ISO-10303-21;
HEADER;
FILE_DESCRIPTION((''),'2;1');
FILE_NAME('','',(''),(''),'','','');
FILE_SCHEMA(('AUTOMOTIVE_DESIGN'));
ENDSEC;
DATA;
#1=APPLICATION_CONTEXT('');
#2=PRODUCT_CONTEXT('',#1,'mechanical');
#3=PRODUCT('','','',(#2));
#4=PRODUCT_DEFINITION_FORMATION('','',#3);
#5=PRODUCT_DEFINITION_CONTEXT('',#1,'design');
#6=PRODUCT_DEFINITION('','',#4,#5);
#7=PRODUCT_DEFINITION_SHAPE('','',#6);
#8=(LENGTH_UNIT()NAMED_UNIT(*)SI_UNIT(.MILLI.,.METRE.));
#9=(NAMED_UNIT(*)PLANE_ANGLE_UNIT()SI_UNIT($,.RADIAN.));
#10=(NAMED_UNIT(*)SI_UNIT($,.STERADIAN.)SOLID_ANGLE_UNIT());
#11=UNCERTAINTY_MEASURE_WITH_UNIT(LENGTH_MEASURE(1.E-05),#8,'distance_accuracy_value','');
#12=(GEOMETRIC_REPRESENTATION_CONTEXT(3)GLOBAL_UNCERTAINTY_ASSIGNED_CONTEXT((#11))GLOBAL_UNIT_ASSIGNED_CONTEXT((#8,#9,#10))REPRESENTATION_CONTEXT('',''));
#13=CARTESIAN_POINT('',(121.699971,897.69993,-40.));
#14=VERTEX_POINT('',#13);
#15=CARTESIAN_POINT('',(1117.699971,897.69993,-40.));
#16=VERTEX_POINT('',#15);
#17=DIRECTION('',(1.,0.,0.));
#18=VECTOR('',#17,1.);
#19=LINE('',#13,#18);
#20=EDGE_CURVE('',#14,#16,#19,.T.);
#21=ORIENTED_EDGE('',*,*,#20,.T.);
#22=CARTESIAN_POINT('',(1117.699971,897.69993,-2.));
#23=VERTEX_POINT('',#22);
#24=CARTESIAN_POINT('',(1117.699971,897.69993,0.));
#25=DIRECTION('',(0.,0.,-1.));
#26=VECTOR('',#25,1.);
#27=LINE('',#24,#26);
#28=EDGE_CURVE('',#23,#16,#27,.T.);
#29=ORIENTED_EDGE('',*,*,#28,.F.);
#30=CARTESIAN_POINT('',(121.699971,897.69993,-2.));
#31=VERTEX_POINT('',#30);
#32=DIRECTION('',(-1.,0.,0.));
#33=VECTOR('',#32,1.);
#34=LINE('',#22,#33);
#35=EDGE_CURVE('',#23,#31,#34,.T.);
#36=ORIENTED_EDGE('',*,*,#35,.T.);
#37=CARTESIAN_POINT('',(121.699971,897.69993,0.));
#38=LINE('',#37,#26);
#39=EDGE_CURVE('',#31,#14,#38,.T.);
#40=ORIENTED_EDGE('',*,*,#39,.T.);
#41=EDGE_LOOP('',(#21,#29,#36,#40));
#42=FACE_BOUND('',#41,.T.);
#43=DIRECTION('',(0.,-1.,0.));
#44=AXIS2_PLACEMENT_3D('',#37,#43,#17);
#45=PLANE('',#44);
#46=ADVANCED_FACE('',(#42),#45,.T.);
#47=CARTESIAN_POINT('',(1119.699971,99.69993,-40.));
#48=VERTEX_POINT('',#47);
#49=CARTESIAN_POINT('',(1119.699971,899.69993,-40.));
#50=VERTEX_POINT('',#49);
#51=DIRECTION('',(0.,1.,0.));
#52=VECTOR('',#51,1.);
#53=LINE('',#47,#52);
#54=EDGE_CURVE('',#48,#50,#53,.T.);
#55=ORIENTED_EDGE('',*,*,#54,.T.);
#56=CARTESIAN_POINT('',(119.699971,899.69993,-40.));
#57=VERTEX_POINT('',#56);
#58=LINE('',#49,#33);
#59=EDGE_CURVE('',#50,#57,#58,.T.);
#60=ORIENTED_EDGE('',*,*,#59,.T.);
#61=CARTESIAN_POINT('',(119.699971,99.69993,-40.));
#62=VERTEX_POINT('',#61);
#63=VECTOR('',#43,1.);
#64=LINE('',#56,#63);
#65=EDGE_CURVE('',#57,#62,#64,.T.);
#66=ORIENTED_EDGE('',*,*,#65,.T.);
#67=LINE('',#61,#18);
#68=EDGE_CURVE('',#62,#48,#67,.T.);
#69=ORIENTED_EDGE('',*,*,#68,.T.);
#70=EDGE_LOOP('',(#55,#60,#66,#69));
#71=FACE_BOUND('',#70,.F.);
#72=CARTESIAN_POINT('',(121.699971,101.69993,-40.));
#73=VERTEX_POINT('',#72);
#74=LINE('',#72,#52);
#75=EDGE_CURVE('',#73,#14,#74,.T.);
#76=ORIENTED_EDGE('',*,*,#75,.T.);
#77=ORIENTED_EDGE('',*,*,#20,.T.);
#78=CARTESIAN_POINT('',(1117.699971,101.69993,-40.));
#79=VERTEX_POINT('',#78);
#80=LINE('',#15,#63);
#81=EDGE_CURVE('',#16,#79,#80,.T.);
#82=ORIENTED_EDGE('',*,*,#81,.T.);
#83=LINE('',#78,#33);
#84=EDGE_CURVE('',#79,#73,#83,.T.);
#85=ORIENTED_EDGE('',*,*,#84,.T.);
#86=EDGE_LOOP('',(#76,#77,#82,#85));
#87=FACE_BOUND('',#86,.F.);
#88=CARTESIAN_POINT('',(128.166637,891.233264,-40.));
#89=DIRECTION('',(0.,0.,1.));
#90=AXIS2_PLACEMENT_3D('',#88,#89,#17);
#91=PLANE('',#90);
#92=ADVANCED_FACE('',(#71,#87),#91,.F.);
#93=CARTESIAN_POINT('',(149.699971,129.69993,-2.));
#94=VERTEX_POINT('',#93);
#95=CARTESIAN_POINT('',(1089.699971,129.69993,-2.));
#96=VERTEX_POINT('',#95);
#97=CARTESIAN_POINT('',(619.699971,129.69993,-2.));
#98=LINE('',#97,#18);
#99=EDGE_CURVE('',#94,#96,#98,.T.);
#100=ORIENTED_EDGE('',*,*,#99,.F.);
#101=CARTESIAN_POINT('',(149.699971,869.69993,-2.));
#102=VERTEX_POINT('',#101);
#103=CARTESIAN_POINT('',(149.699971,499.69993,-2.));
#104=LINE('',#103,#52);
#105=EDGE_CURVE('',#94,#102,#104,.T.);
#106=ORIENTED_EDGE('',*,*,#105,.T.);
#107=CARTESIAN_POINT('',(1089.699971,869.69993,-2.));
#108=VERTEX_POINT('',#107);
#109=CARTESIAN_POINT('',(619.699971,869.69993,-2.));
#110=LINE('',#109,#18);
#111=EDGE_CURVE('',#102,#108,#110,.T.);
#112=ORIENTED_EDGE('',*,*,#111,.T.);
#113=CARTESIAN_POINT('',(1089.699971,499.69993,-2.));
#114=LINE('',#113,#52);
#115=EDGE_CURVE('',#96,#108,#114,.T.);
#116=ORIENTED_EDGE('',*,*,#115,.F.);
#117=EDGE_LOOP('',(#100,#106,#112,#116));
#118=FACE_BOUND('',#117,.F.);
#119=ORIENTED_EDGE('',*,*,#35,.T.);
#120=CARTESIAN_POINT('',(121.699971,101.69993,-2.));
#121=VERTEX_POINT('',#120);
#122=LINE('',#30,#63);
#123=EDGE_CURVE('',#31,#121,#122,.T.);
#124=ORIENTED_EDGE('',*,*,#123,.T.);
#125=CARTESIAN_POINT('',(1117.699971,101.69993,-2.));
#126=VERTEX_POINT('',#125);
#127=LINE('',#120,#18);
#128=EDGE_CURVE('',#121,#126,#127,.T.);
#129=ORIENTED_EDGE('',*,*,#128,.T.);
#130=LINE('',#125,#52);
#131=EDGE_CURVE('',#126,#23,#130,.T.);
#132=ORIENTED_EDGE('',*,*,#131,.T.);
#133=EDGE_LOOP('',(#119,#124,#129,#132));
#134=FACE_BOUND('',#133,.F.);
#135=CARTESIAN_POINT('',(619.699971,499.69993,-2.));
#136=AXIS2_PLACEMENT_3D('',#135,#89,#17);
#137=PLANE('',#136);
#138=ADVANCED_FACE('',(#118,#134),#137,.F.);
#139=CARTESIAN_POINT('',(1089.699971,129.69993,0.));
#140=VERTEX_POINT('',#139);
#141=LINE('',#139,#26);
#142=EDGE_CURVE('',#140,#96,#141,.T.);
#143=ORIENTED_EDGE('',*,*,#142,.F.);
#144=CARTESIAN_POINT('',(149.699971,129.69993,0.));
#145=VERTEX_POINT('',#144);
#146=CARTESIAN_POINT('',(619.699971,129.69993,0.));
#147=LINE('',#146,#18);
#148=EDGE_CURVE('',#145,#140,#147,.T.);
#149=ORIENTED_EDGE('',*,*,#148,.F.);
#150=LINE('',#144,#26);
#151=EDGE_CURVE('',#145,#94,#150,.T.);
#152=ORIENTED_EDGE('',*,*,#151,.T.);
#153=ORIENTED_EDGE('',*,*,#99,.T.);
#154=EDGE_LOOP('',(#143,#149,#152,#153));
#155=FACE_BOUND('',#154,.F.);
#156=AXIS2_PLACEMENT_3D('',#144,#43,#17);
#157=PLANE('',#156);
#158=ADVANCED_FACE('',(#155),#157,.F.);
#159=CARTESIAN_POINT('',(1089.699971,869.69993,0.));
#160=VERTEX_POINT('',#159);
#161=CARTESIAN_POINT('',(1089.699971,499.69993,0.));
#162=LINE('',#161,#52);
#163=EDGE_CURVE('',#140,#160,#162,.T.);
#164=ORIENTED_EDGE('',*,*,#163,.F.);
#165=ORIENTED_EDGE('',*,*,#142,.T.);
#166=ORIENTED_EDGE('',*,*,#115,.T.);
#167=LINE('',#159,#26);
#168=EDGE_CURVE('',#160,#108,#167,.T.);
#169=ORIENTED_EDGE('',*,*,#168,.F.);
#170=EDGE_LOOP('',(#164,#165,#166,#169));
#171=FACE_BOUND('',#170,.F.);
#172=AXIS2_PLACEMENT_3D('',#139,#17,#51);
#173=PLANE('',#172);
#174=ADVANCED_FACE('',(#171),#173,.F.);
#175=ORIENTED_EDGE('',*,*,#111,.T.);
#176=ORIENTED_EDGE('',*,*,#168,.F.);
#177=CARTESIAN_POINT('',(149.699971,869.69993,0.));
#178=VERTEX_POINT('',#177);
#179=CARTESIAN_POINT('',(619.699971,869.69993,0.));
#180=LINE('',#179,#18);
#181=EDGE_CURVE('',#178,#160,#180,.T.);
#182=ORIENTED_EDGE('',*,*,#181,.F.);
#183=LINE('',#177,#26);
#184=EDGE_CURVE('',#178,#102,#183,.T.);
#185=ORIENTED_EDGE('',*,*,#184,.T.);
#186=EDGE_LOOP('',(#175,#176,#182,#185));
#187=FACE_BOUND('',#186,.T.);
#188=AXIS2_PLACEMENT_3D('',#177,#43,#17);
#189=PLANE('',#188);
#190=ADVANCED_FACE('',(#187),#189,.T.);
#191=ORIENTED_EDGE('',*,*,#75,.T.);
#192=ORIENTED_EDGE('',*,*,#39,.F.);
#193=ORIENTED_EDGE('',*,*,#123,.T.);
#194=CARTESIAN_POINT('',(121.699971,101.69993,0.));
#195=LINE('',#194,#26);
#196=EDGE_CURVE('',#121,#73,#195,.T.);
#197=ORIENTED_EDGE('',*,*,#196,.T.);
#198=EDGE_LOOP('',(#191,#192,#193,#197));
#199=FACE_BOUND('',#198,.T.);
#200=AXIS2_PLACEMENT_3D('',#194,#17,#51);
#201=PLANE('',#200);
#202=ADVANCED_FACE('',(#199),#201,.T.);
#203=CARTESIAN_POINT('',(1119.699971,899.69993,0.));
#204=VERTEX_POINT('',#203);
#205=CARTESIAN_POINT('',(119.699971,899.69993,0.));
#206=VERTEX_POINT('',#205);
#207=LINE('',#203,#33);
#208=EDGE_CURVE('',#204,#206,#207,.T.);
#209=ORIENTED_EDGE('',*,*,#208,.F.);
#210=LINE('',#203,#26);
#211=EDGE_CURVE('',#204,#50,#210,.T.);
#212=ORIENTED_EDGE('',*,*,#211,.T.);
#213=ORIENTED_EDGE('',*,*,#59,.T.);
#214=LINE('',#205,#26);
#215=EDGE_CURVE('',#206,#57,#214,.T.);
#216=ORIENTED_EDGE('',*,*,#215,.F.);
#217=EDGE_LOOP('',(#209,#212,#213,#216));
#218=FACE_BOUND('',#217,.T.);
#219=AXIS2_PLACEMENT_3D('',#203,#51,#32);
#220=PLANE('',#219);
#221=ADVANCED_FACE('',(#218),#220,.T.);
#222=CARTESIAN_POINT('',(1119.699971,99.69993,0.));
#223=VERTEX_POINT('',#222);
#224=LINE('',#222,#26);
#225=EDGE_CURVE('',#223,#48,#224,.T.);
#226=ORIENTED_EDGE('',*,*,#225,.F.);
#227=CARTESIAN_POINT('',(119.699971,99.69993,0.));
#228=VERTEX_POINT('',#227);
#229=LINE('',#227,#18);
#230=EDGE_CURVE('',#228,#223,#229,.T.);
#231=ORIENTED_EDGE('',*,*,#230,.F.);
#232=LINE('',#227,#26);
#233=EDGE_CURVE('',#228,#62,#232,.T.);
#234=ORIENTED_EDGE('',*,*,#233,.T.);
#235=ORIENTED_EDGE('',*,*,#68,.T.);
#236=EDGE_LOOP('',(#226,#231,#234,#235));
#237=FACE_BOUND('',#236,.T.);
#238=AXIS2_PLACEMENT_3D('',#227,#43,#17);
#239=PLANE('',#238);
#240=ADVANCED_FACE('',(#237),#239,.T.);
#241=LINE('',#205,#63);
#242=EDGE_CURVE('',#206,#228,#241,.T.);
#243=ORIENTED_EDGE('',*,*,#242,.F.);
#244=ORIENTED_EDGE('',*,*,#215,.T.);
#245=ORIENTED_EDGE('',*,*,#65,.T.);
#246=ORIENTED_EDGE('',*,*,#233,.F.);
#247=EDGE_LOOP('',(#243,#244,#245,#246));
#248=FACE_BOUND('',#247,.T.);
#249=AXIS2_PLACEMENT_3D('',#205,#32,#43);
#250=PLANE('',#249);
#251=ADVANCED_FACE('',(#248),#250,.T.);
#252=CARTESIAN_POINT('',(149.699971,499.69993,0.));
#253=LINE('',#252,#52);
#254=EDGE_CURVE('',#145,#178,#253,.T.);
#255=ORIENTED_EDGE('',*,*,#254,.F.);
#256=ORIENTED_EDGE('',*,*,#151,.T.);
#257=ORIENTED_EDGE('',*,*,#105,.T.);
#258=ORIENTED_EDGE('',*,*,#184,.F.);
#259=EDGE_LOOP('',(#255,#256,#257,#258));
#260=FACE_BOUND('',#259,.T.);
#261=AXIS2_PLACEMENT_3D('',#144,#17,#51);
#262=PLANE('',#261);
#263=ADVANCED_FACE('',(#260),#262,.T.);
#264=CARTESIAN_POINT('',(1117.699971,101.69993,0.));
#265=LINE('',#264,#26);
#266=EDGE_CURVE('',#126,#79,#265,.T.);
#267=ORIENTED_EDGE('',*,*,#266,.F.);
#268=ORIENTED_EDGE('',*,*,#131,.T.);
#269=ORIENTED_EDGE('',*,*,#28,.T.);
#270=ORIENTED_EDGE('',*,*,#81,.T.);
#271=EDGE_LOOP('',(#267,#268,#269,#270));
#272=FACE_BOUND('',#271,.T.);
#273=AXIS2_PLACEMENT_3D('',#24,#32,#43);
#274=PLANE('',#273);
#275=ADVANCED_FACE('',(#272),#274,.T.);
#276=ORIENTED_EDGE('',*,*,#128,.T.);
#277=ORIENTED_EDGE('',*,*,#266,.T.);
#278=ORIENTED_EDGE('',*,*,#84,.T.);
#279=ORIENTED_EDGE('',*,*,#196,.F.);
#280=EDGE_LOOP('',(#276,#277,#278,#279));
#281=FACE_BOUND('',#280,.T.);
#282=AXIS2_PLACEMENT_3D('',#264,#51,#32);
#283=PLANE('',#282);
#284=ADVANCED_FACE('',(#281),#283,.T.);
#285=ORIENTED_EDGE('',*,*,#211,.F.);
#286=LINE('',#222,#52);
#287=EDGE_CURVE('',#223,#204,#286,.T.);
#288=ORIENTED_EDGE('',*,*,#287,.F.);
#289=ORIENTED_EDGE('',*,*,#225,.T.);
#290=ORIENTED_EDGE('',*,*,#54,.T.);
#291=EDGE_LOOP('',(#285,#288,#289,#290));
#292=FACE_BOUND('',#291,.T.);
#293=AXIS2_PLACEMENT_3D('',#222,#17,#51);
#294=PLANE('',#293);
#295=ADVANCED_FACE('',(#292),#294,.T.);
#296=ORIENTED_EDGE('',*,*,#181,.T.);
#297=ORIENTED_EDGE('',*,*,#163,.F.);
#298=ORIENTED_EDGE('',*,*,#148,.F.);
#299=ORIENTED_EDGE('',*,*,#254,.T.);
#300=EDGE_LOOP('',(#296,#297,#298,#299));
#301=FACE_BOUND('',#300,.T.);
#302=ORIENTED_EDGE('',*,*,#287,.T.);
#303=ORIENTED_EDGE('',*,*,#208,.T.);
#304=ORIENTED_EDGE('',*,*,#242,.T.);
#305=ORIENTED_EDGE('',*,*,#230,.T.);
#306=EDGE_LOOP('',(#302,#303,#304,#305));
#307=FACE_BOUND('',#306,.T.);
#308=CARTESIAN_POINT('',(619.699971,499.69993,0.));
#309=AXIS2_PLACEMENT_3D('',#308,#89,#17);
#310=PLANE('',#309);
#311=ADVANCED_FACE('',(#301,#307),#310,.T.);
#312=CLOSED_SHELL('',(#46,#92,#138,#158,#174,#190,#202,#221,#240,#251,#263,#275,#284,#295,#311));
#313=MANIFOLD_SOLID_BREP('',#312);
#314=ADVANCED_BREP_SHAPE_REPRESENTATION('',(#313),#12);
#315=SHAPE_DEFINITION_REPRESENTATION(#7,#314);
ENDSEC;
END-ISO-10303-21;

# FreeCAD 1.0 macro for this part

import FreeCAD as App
import Part
import Sketcher

V = App.Vector
Q = App.Units.Quantity


def add_polygon(sketch, points):
    """Adds a closed chain of lines whose ends are joined by coincident constraints."""
    first, n = sketch.GeometryCount, len(points)
    for a, b in zip(points, points[1:] + points[:1]):
        sketch.addGeometry(Part.LineSegment(App.Vector(*a, 0), App.Vector(*b, 0)), False)
    for i in range(n):
        sketch.addConstraint(Sketcher.Constraint("Coincident", first + i, 2, first + (i + 1) % n, 1))

doc = App.newDocument("Part")
body = doc.addObject("PartDesign::Body", "Body")

# Sketch on XY plane
sketch1 = body.newObject("Sketcher::SketchObject", "Sketch")
sketch1.AttachmentSupport = (doc.getObject("XY_Plane"), [""])
sketch1.MapMode = "FlatFace"
add_polygon(sketch1, [(120, 100), (1120, 100), (1120, 900), (120, 900)])  # lines 0-3
add_polygon(sketch1, [(122, 898), (1118, 898), (1118, 102), (122, 102)])  # lines 4-7
sketch1.addConstraint(Sketcher.Constraint("Horizontal", 0))
sketch1.addConstraint(Sketcher.Constraint("Vertical", 1))
sketch1.addConstraint(Sketcher.Constraint("Horizontal", 2))
sketch1.addConstraint(Sketcher.Constraint("Vertical", 3))
sketch1.addConstraint(Sketcher.Constraint("Horizontal", 4))
sketch1.addConstraint(Sketcher.Constraint("Vertical", 5))
sketch1.addConstraint(Sketcher.Constraint("Horizontal", 6))
sketch1.addConstraint(Sketcher.Constraint("Vertical", 7))
sketch1.addConstraint(Sketcher.Constraint("DistanceX", 0, 1, 0, 2, Q("1000 mm")))
sketch1.addConstraint(Sketcher.Constraint("DistanceX", 4, 1, 4, 2, Q("996 mm")))
sketch1.addConstraint(Sketcher.Constraint("DistanceY", 1, 1, 1, 2, Q("800 mm")))
sketch1.addConstraint(Sketcher.Constraint("DistanceY", 5, 2, 5, 1, Q("796 mm")))
sketch1.addConstraint(Sketcher.Constraint("DistanceX", 4, 2, 1, 2, Q("2 mm")))
sketch1.addConstraint(Sketcher.Constraint("DistanceY", 4, 2, 1, 2, Q("2 mm")))
sketch1.addConstraint(Sketcher.Constraint("DistanceX", -1, 1, 0, 2, Q("1119.699971 mm")))
sketch1.addConstraint(Sketcher.Constraint("DistanceY", -1, 1, 0, 2, Q("99.69993 mm")))
pad1 = body.newObject("PartDesign::Pad", "Pad")
pad1.Profile = sketch1
pad1.Length = 40
pad1.Reversed = True

# Sketch on XY plane
sketch2 = body.newObject("Sketcher::SketchObject", "Sketch001")
sketch2.AttachmentSupport = (doc.getObject("XY_Plane"), [""])
sketch2.MapMode = "FlatFace"
add_polygon(sketch2, [(122, 102), (1118, 102), (1118, 898), (122, 898)])  # lines 0-3
add_polygon(sketch2, [(1090, 130), (150, 130), (150, 870), (1090, 870)])  # lines 4-7
sketch2.addConstraint(Sketcher.Constraint("Horizontal", 0))
sketch2.addConstraint(Sketcher.Constraint("Vertical", 1))
sketch2.addConstraint(Sketcher.Constraint("Horizontal", 2))
sketch2.addConstraint(Sketcher.Constraint("Vertical", 3))
sketch2.addConstraint(Sketcher.Constraint("Horizontal", 4))
sketch2.addConstraint(Sketcher.Constraint("Vertical", 5))
sketch2.addConstraint(Sketcher.Constraint("Horizontal", 6))
sketch2.addConstraint(Sketcher.Constraint("Vertical", 7))
sketch2.addConstraint(Sketcher.Constraint("DistanceX", 0, 1, 0, 2, Q("996 mm")))
sketch2.addConstraint(Sketcher.Constraint("DistanceX", 4, 2, 4, 1, Q("940 mm")))
sketch2.addConstraint(Sketcher.Constraint("DistanceY", 1, 1, 1, 2, Q("796 mm")))
sketch2.addConstraint(Sketcher.Constraint("DistanceY", 5, 1, 5, 2, Q("740 mm")))
sketch2.addConstraint(Sketcher.Constraint("DistanceX", 3, 2, 4, 2, Q("28 mm")))
sketch2.addConstraint(Sketcher.Constraint("DistanceY", 3, 2, 4, 2, Q("28 mm")))
sketch2.addConstraint(Sketcher.Constraint("DistanceX", -1, 1, 0, 2, Q("1117.699971 mm")))
sketch2.addConstraint(Sketcher.Constraint("DistanceY", -1, 1, 0, 2, Q("101.69993 mm")))
pad2 = body.newObject("PartDesign::Pad", "Pad001")
pad2.Profile = sketch2
pad2.Length = 2
pad2.Reversed = True

doc.recompute()
